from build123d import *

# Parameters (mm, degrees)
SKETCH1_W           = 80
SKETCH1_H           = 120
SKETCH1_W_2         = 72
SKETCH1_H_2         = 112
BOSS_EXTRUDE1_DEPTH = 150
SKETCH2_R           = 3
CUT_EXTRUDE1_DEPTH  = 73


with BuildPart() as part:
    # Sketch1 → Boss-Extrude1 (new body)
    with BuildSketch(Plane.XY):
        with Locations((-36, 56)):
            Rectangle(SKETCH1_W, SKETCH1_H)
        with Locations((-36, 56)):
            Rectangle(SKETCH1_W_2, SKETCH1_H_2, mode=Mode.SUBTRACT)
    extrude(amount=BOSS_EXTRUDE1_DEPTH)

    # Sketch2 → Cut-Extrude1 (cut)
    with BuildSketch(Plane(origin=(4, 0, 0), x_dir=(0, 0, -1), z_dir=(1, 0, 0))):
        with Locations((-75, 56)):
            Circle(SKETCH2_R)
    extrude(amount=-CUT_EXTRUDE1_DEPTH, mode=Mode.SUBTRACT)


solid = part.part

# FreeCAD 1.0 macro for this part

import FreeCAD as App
import Part
import Sketcher
from FreeCAD import Vector

doc = App.newDocument("Part")
body = doc.addObject("PartDesign::Body", "Body")

# Sketch on XY plane
sketch1 = body.newObject("Sketcher::SketchObject", "Sketch")
sketch1.AttachmentSupport = (doc.getObject("XY_Plane"), [""])
sketch1.MapMode = "FlatFace"
sketch1.addGeometry([
    Part.LineSegment(Vector(-76, 116, 0), Vector(-76, -4, 0)),  # 0
    Part.LineSegment(Vector(-76, -4, 0), Vector(4, -4, 0)),  # 1
    Part.LineSegment(Vector(4, -4, 0), Vector(4, 116, 0)),  # 2
    Part.LineSegment(Vector(4, 116, 0), Vector(-76, 116, 0)),  # 3
    Part.LineSegment(Vector(0, 0, 0), Vector(-72, 0, 0)),  # 4
    Part.LineSegment(Vector(-72, 0, 0), Vector(-72, 112, 0)),  # 5
    Part.LineSegment(Vector(-72, 112, 0), Vector(0, 112, 0)),  # 6
    Part.LineSegment(Vector(0, 112, 0), Vector(0, 0, 0)),  # 7
], False)
sketch1.addConstraint([
    Sketcher.Constraint("Coincident", 0, 2, 1, 1),
    Sketcher.Constraint("Coincident", 1, 2, 2, 1),
    Sketcher.Constraint("Coincident", 2, 2, 3, 1),
    Sketcher.Constraint("Coincident", 3, 2, 0, 1),
    Sketcher.Constraint("Coincident", 4, 2, 5, 1),
    Sketcher.Constraint("Coincident", 5, 2, 6, 1),
    Sketcher.Constraint("Coincident", 6, 2, 7, 1),
    Sketcher.Constraint("Coincident", 7, 2, 4, 1),
    Sketcher.Constraint("Vertical", 0),
    Sketcher.Constraint("Horizontal", 1),
    Sketcher.Constraint("Vertical", 2),
    Sketcher.Constraint("Horizontal", 3),
    Sketcher.Constraint("Horizontal", 4),
    Sketcher.Constraint("Vertical", 5),
    Sketcher.Constraint("Horizontal", 6),
    Sketcher.Constraint("Vertical", 7),
    Sketcher.Constraint("Coincident", 7, 2, -1, 1),
    Sketcher.Constraint("DistanceX", 1, 1, 1, 2, 80.0),
    Sketcher.Constraint("DistanceX", 4, 2, 4, 1, 72.0),
    Sketcher.Constraint("DistanceY", 0, 2, 0, 1, 120.0),
    Sketcher.Constraint("DistanceY", 5, 1, 5, 2, 112.0),
    Sketcher.Constraint("DistanceX", 0, 2, -1, 1, 76.0),
    Sketcher.Constraint("DistanceY", 0, 2, -1, 1, 4.0),
])
pad1 = body.newObject("PartDesign::Pad", "Pad")
pad1.Profile = sketch1
pad1.Length = 150

# Sketch on YZ plane
sketch2 = body.newObject("Sketcher::SketchObject", "Sketch001")
sketch2.AttachmentSupport = (doc.getObject("YZ_Plane"), [""])
sketch2.MapMode = "FlatFace"
sketch2.AttachmentOffset = App.Placement(Vector(0, 0, 4), App.Rotation())
sketch2.addGeometry(Part.Circle(Vector(56, 75, 0), Vector(0, 0, 1), 3), False)
sketch2.addConstraint([
    Sketcher.Constraint("Diameter", 0, 6.0),
    Sketcher.Constraint("DistanceX", -1, 1, 0, 3, 56.0),
    Sketcher.Constraint("DistanceY", -1, 1, 0, 3, 75.0),
])
pocket1 = body.newObject("PartDesign::Pocket", "Pocket")
pocket1.Profile = sketch2
pocket1.Length = 73

doc.recompute()
